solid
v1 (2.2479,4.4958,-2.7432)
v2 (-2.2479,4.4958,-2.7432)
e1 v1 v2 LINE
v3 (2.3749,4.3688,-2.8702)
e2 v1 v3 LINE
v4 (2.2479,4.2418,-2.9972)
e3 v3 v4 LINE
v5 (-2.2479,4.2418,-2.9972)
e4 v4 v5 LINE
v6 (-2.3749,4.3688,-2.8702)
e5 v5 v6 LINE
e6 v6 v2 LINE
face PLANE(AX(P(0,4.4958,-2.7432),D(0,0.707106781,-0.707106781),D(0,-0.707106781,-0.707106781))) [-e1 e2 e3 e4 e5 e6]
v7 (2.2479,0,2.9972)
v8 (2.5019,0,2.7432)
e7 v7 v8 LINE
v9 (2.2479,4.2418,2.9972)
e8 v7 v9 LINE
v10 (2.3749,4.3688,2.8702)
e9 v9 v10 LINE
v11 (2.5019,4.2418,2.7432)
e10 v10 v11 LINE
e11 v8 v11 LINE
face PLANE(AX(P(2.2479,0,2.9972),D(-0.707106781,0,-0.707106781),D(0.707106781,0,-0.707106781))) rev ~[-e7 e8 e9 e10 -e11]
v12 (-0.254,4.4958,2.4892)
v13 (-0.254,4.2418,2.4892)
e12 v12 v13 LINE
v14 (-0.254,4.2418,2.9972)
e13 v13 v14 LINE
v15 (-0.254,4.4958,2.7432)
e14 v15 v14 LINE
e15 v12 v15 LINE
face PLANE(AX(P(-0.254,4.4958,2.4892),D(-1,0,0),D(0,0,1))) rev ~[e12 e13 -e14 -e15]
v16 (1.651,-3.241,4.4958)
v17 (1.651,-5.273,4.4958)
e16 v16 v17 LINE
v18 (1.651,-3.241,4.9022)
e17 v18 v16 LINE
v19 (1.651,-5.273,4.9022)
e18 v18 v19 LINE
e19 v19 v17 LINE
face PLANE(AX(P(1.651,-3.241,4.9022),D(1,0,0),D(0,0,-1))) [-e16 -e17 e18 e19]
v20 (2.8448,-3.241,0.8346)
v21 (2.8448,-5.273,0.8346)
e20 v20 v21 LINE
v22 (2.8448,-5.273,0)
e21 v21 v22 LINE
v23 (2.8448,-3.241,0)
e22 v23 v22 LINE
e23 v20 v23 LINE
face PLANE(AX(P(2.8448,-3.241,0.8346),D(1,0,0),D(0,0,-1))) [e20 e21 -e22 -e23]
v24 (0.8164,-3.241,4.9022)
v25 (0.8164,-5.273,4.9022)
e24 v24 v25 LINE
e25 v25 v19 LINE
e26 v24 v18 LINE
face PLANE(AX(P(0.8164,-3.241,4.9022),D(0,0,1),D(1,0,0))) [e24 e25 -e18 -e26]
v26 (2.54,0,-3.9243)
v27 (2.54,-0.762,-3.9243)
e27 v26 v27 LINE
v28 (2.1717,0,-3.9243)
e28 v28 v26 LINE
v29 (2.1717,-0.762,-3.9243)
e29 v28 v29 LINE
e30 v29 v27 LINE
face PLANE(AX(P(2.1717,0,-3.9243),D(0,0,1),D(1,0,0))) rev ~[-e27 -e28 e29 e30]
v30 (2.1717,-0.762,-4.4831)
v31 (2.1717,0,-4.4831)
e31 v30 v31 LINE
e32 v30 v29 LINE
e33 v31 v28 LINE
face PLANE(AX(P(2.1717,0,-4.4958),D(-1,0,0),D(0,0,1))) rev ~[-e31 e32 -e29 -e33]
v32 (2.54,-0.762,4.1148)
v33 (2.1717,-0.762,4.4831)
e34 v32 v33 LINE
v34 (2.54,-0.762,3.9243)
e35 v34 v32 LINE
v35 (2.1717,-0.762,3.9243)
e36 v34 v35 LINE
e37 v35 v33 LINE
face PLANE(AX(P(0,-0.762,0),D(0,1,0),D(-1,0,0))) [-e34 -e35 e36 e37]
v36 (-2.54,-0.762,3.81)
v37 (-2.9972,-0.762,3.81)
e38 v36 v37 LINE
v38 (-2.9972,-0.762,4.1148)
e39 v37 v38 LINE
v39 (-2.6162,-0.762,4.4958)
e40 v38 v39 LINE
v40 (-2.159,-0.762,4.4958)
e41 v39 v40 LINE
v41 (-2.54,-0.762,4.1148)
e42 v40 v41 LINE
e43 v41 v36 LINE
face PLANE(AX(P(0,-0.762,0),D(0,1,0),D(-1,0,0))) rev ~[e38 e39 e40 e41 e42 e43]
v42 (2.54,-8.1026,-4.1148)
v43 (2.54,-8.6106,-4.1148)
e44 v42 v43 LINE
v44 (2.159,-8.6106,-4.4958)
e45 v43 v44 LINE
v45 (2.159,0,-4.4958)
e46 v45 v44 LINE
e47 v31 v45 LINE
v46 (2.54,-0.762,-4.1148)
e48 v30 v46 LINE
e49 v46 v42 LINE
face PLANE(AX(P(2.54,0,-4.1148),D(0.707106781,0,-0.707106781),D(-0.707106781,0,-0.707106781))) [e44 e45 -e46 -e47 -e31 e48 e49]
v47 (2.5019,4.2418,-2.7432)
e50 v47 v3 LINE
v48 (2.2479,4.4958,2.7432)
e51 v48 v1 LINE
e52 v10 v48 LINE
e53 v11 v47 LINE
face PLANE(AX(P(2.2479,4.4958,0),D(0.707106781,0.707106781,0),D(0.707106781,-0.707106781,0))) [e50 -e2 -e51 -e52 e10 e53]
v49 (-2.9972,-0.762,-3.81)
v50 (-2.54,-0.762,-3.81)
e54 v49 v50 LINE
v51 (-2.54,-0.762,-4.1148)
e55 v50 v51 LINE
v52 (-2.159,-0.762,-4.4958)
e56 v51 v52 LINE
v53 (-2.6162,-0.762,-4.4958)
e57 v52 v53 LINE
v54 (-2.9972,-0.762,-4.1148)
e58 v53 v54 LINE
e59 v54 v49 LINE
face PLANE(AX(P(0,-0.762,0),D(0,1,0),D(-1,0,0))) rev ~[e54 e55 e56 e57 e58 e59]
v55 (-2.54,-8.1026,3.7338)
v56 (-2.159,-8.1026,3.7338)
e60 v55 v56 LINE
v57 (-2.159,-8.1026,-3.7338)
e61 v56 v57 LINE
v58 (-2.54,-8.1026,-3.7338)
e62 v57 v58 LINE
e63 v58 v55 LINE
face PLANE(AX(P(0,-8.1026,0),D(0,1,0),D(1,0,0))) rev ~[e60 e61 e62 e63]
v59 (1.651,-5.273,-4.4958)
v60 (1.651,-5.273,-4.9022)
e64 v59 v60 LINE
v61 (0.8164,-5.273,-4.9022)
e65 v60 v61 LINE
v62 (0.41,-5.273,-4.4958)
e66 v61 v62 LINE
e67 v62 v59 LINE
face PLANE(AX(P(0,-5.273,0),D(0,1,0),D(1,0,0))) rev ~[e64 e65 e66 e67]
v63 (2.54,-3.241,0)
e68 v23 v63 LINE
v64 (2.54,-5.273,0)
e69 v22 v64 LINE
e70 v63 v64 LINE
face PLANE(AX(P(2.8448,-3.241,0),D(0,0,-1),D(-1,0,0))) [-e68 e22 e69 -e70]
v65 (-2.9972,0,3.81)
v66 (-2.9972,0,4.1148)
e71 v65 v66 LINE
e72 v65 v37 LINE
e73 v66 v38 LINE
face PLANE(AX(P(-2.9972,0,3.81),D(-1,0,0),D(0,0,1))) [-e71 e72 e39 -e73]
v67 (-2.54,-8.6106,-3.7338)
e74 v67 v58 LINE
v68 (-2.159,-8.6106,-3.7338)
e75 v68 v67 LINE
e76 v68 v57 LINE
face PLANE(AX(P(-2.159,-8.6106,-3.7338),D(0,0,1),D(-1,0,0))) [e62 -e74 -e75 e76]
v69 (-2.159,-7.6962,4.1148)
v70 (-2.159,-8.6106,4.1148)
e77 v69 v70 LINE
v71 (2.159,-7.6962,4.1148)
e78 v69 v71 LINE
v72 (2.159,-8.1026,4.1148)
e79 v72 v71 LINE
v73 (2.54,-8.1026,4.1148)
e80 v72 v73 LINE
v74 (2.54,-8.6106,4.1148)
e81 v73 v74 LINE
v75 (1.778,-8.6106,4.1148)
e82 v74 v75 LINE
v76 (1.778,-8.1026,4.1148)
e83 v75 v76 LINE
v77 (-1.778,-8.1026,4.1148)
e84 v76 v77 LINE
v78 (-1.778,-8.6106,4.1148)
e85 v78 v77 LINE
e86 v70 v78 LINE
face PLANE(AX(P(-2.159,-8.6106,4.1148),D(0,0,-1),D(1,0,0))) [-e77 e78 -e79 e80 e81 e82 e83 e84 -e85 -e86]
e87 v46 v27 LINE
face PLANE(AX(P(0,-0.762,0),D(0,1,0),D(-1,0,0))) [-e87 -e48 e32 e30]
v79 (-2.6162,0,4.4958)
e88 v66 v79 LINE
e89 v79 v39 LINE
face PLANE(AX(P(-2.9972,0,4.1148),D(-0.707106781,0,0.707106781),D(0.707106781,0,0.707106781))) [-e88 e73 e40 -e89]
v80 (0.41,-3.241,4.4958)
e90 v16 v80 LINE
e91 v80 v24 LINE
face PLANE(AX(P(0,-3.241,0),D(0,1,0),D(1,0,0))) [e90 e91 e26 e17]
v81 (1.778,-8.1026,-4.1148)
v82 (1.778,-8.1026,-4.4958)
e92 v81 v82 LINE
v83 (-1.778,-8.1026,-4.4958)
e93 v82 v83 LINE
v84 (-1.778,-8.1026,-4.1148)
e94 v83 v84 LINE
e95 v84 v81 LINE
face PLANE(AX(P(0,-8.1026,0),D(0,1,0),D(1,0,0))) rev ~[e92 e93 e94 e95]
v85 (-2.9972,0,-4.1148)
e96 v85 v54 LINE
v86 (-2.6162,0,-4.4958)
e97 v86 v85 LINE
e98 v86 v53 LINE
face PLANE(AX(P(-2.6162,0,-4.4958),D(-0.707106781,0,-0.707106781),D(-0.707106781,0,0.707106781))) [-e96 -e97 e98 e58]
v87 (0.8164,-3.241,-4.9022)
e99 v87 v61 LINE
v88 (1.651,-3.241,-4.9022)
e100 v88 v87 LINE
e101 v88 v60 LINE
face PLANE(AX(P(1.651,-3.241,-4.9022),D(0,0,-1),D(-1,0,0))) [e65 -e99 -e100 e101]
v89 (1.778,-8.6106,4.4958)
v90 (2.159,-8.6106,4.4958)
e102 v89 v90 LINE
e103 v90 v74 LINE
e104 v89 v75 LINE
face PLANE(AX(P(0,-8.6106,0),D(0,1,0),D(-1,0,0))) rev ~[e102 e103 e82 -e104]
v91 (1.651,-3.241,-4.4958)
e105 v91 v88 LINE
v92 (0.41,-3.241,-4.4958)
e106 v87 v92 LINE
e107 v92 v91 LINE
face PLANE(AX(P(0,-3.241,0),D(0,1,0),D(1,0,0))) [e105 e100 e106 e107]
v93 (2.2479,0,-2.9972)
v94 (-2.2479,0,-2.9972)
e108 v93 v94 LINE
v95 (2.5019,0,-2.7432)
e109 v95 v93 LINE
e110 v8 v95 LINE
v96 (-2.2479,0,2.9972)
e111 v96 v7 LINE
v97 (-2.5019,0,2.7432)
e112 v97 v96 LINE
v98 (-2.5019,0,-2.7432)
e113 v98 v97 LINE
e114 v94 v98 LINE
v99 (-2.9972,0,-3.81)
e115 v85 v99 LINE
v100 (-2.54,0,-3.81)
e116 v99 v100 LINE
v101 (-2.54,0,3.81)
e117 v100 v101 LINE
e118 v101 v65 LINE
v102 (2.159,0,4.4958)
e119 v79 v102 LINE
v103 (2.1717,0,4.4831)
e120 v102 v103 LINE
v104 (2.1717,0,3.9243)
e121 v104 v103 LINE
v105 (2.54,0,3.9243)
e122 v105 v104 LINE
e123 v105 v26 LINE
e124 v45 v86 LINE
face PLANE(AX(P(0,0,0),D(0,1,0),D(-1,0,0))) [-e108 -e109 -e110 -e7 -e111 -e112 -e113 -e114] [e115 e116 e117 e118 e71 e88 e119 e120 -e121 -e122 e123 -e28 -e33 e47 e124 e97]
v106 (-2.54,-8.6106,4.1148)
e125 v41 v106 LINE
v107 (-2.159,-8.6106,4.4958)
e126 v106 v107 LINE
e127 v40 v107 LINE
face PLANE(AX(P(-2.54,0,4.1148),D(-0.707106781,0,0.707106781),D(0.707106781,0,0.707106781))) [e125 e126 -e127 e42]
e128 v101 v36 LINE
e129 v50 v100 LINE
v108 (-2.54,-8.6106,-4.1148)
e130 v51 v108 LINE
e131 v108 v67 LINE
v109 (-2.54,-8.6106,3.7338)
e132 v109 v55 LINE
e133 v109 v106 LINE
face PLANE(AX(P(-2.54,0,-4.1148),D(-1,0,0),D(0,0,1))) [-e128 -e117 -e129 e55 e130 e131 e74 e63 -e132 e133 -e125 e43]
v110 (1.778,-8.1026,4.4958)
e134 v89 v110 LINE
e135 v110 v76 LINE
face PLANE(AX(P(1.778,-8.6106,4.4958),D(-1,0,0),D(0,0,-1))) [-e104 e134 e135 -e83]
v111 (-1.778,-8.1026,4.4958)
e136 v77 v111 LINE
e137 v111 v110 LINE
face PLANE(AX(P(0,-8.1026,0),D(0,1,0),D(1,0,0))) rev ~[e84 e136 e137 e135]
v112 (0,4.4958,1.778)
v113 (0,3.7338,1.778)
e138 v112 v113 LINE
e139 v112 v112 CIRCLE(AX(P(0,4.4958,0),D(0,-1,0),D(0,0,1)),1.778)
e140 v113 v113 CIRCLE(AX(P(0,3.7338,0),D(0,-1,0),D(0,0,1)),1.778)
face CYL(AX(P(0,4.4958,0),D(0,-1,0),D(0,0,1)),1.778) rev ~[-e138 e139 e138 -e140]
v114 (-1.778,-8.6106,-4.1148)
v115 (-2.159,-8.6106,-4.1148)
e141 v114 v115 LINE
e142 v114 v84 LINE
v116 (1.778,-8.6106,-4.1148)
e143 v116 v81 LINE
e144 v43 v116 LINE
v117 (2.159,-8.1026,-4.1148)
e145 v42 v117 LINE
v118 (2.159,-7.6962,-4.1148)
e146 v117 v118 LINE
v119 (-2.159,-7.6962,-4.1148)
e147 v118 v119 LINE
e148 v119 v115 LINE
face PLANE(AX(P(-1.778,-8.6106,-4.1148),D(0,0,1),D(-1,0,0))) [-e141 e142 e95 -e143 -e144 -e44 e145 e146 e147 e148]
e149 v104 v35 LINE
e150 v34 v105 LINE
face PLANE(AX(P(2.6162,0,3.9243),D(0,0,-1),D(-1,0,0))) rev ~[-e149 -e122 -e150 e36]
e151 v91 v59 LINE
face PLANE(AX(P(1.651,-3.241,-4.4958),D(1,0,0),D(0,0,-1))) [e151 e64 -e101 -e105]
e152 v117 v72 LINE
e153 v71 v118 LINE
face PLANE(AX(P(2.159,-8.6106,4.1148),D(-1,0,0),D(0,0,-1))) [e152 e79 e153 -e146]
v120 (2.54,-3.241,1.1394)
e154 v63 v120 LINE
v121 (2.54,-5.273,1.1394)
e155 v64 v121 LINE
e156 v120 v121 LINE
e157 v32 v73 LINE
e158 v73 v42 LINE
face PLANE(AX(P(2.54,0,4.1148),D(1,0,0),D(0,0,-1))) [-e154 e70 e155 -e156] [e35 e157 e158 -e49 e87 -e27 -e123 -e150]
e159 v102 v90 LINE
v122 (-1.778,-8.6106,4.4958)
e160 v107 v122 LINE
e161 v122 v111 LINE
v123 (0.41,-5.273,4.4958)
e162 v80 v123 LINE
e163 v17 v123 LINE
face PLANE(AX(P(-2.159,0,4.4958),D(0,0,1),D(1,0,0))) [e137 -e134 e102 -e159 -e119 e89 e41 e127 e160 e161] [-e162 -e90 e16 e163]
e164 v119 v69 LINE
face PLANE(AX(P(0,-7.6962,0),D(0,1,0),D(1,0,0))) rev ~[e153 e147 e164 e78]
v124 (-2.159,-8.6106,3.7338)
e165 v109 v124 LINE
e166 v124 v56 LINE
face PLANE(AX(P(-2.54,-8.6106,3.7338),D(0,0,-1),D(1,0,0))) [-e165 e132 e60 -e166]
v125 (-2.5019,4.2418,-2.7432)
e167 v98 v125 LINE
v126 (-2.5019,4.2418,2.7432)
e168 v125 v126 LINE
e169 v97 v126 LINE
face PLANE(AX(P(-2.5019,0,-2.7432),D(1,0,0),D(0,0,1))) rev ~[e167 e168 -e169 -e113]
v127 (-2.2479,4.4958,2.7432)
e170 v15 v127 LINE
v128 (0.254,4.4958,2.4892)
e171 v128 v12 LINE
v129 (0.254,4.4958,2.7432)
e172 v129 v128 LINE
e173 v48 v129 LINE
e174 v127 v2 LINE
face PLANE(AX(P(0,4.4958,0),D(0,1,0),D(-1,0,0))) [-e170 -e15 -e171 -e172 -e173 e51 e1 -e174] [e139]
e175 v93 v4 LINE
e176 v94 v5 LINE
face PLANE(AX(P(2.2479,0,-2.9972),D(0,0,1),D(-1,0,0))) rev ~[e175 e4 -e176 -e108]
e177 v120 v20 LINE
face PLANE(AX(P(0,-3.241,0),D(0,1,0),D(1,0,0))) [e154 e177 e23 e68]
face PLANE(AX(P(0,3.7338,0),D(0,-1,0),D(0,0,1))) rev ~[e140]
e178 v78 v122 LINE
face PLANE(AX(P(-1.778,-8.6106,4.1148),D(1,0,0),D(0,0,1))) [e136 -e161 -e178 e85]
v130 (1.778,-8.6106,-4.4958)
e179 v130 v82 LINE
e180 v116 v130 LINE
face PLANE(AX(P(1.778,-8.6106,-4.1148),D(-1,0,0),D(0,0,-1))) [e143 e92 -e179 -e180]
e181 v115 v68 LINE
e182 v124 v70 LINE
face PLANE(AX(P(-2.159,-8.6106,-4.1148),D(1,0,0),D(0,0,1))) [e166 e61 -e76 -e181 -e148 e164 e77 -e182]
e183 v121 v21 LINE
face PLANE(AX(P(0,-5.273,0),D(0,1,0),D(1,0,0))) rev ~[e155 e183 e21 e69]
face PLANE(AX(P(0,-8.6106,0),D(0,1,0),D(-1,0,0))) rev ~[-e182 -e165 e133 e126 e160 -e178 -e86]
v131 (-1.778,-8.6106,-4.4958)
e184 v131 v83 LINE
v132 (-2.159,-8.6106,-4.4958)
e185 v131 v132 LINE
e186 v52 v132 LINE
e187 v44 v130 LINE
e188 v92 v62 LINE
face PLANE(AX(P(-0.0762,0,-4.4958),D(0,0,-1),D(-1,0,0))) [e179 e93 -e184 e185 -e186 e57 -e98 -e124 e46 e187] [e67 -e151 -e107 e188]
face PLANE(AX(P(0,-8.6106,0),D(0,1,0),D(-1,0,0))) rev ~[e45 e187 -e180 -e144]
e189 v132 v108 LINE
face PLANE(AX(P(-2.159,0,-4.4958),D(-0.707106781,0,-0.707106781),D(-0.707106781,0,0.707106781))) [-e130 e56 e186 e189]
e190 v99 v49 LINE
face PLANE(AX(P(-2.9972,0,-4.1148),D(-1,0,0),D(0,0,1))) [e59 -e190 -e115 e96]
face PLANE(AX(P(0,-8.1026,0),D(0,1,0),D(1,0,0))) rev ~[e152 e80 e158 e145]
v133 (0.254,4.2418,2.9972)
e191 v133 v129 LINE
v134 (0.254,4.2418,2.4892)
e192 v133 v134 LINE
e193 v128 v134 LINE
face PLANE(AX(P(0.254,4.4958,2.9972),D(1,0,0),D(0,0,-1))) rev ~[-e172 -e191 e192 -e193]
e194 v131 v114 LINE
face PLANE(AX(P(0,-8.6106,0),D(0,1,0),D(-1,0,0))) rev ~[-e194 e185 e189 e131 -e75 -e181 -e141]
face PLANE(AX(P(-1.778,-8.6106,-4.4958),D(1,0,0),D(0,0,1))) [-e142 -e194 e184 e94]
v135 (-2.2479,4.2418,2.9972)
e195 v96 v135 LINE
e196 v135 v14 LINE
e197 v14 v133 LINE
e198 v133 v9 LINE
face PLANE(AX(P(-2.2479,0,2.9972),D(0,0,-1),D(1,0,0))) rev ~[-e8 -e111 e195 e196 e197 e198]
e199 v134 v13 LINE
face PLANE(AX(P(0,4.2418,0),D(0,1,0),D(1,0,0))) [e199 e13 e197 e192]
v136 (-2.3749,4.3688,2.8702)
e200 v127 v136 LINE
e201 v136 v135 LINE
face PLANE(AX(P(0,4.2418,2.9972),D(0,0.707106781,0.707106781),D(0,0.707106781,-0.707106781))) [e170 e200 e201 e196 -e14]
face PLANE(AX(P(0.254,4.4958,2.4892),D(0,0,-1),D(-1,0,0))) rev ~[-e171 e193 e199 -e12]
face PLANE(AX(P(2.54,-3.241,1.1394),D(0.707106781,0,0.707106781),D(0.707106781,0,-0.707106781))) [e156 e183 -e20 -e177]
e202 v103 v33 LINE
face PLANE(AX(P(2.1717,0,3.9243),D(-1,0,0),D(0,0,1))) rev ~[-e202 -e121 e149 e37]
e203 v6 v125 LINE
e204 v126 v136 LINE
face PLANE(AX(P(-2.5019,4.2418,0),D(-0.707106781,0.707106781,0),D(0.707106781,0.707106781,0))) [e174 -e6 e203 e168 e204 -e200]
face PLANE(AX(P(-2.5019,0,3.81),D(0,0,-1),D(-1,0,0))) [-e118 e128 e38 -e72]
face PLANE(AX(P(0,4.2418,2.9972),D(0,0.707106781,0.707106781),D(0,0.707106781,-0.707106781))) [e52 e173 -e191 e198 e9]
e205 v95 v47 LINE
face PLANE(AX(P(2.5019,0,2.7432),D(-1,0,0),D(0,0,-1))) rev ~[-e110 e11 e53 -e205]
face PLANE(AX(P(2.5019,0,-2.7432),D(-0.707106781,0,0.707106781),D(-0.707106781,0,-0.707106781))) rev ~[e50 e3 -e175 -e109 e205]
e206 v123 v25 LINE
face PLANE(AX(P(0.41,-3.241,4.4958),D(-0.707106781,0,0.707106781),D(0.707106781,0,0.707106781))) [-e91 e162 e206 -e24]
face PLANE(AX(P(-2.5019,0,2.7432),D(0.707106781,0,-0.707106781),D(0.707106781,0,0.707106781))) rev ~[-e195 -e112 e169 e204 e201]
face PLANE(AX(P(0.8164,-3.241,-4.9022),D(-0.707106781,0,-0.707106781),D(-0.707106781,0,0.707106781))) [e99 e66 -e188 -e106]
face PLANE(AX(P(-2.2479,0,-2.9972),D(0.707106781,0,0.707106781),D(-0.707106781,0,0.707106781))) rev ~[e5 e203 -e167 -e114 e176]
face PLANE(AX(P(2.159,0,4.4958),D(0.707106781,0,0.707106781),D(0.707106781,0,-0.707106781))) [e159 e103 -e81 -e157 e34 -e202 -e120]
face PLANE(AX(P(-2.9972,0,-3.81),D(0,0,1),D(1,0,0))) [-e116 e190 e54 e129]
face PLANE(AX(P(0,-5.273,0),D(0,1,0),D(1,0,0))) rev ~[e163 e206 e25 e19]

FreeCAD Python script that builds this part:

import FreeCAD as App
import Part
import Sketcher

V = App.Vector
Q = App.Units.Quantity

doc = App.newDocument("Part")
body = doc.addObject("PartDesign::Body", "Body")

# Sketch on XZ plane
sketch1 = body.newObject("Sketcher::SketchObject", "Sketch")
sketch1.AttachmentSupport = (doc.getObject("XZ_Plane"), [""])
sketch1.MapMode = "FlatFace"
sketch1.addGeometry([
    Part.LineSegment(V(-2.159, -4.4958, 0), V(-2.54, -4.1148, 0)),  # 0
    Part.LineSegment(V(-2.54, -4.1148, 0), V(-2.54, 4.1148, 0)),  # 1
    Part.LineSegment(V(-2.54, 4.1148, 0), V(-2.159, 4.4958, 0)),  # 2
    Part.LineSegment(V(-2.159, 4.4958, 0), V(2.159, 4.4958, 0)),  # 3
    Part.LineSegment(V(2.159, 4.4958, 0), V(2.54, 4.1148, 0)),  # 4
    Part.LineSegment(V(2.54, 4.1148, 0), V(2.54, -4.1148, 0)),  # 5
    Part.LineSegment(V(2.54, -4.1148, 0), V(2.159, -4.4958, 0)),  # 6
    Part.LineSegment(V(2.159, -4.4958, 0), V(-2.159, -4.4958, 0)),  # 7
], False)
sketch1.addConstraint([
    Sketcher.Constraint("Coincident", 0, 2, 1, 1),
    Sketcher.Constraint("Coincident", 1, 2, 2, 1),
    Sketcher.Constraint("Coincident", 2, 2, 3, 1),
    Sketcher.Constraint("Coincident", 3, 2, 4, 1),
    Sketcher.Constraint("Coincident", 4, 2, 5, 1),
    Sketcher.Constraint("Coincident", 5, 2, 6, 1),
    Sketcher.Constraint("Coincident", 6, 2, 7, 1),
    Sketcher.Constraint("Coincident", 7, 2, 0, 1),
    Sketcher.Constraint("Vertical", 1),
    Sketcher.Constraint("Horizontal", 3),
    Sketcher.Constraint("Vertical", 5),
    Sketcher.Constraint("Horizontal", 7),
    Sketcher.Constraint("Symmetric", 0, 2, 4, 2, -1, 1),
    Sketcher.Constraint("Symmetric", 2, 2, 6, 2, -1, 1),
    Sketcher.Constraint("Perpendicular", 0, 2),
    Sketcher.Constraint("Perpendicular", 2, 4),
    Sketcher.Constraint("Perpendicular", 4, 6),
    Sketcher.Constraint("Horizontal", 1, 2, 4, 2),
    Sketcher.Constraint("Vertical", 3, 2, 6, 2),
    Sketcher.Constraint("DistanceX", 3, 1, 3, 2, Q("0.17 in")),
    Sketcher.Constraint("DistanceX", 0, 2, -1, 1, Q("0.1 in")),
    Sketcher.Constraint("DistanceY", 1, 1, 1, 2, Q("0.324 in")),
])
pad1 = body.newObject("PartDesign::Pad", "Pad")
pad1.Profile = sketch1
pad1.Length = Q("0.339 in")

# Sketch on XZ plane
sketch2 = body.newObject("Sketcher::SketchObject", "Sketch001")
sketch2.AttachmentSupport = (doc.getObject("XZ_Plane"), [""])
sketch2.MapMode = "FlatFace"
sketch2.AttachmentOffset = App.Placement(V(0, 0, 0.339 * 25.4), App.Rotation())
sketch2.addGeometry([
    Part.LineSegment(V(-2.159, -3.7338, 0), V(-2.54, -3.7338, 0)),  # 0
    Part.LineSegment(V(-2.54, -3.7338, 0), V(-2.54, 3.7338, 0)),  # 1
    Part.LineSegment(V(-2.54, 3.7338, 0), V(-2.159, 3.7338, 0)),  # 2
    Part.LineSegment(V(-2.159, 3.7338, 0), V(-2.159, 4.1148, 0)),  # 3
    Part.LineSegment(V(-2.159, 4.1148, 0), V(-1.778, 4.1148, 0)),  # 4
    Part.LineSegment(V(-1.778, 4.1148, 0), V(-1.778, 4.4958, 0)),  # 5
    Part.LineSegment(V(-1.778, 4.4958, 0), V(1.778, 4.4958, 0)),  # 6
    Part.LineSegment(V(1.778, 4.4958, 0), V(1.778, 4.1148, 0)),  # 7
    Part.LineSegment(V(1.778, 4.1148, 0), V(2.54, 4.1148, 0)),  # 8
    Part.LineSegment(V(2.54, 4.1148, 0), V(2.54, -4.1148, 0)),  # 9
    Part.LineSegment(V(2.54, -4.1148, 0), V(1.778, -4.1148, 0)),  # 10
    Part.LineSegment(V(1.778, -4.1148, 0), V(1.778, -4.4958, 0)),  # 11
    Part.LineSegment(V(1.778, -4.4958, 0), V(-1.778, -4.4958, 0)),  # 12
    Part.LineSegment(V(-1.778, -4.4958, 0), V(-1.778, -4.1148, 0)),  # 13
    Part.LineSegment(V(-1.778, -4.1148, 0), V(-2.159, -4.1148, 0)),  # 14
    Part.LineSegment(V(-2.159, -4.1148, 0), V(-2.159, -3.7338, 0)),  # 15
], False)
sketch2.addConstraint([
    Sketcher.Constraint("Coincident", 0, 2, 1, 1),
    Sketcher.Constraint("Coincident", 1, 2, 2, 1),
    Sketcher.Constraint("Coincident", 2, 2, 3, 1),
    Sketcher.Constraint("Coincident", 3, 2, 4, 1),
    Sketcher.Constraint("Coincident", 4, 2, 5, 1),
    Sketcher.Constraint("Coincident", 5, 2, 6, 1),
    Sketcher.Constraint("Coincident", 6, 2, 7, 1),
    Sketcher.Constraint("Coincident", 7, 2, 8, 1),
    Sketcher.Constraint("Coincident", 8, 2, 9, 1),
    Sketcher.Constraint("Coincident", 9, 2, 10, 1),
    Sketcher.Constraint("Coincident", 10, 2, 11, 1),
    Sketcher.Constraint("Coincident", 11, 2, 12, 1),
    Sketcher.Constraint("Coincident", 12, 2, 13, 1),
    Sketcher.Constraint("Coincident", 13, 2, 14, 1),
    Sketcher.Constraint("Coincident", 14, 2, 15, 1),
    Sketcher.Constraint("Coincident", 15, 2, 0, 1),
    Sketcher.Constraint("Horizontal", 0),
    Sketcher.Constraint("Vertical", 1),
    Sketcher.Constraint("Horizontal", 2),
    Sketcher.Constraint("Vertical", 3),
    Sketcher.Constraint("Horizontal", 4),
    Sketcher.Constraint("Vertical", 5),
    Sketcher.Constraint("Horizontal", 6),
    Sketcher.Constraint("Vertical", 7),
    Sketcher.Constraint("Horizontal", 8),
    Sketcher.Constraint("Vertical", 9),
    Sketcher.Constraint("Horizontal", 10),
    Sketcher.Constraint("Vertical", 11),
    Sketcher.Constraint("Horizontal", 12),
    Sketcher.Constraint("Vertical", 13),
    Sketcher.Constraint("Horizontal", 14),
    Sketcher.Constraint("Vertical", 15),
    Sketcher.Constraint("Symmetric", 4, 2, 10, 2, -1, 1),
    Sketcher.Constraint("Symmetric", 6, 2, 12, 2, -1, 1),
    Sketcher.Constraint("Symmetric", 4, 2, 7, 2, -2),
    Sketcher.Constraint("Symmetric", 3, 2, 14, 2, -1),
    Sketcher.Constraint("Equal", 2, 4),
    Sketcher.Constraint("Equal", 14, 3),
    Sketcher.Constraint("Equal", 3, 5),
    Sketcher.Constraint("Equal", 13, 15),
    Sketcher.Constraint("DistanceX", 6, 1, 6, 2, Q("0.14 in")),
    Sketcher.Constraint("DistanceX", 8, 1, 8, 2, Q("0.03 in")),
    Sketcher.Constraint("DistanceX", 0, 2, -1, 1, Q("0.1 in")),
    Sketcher.Constraint("DistanceY", 1, 1, 1, 2, Q("0.294 in")),
])
pocket1 = body.newObject("PartDesign::Pocket", "Pocket")
pocket1.Profile = sketch2
pocket1.Length = Q("0.02 in")

# Sketch on XZ plane
sketch3 = body.newObject("Sketcher::SketchObject", "Sketch002")
sketch3.AttachmentSupport = (doc.getObject("XZ_Plane"), [""])
sketch3.MapMode = "FlatFace"
sketch3.AttachmentOffset = App.Placement(V(0, 0, 0.339 * 25.4), App.Rotation())
sketch3.addGeometry([
    Part.LineSegment(V(-2.159, -4.1148, 0), V(-2.159, 4.1148, 0)),
    Part.LineSegment(V(-2.159, 4.1148, 0), V(2.159, 4.1148, 0)),
    Part.LineSegment(V(2.159, 4.1148, 0), V(2.159, -4.1148, 0)),
    Part.LineSegment(V(2.159, -4.1148, 0), V(-2.159, -4.1148, 0)),
], False)
sketch3.addConstraint([
    Sketcher.Constraint("Coincident", 0, 2, 1, 1),
    Sketcher.Constraint("Coincident", 1, 2, 2, 1),
    Sketcher.Constraint("Coincident", 2, 2, 3, 1),
    Sketcher.Constraint("Coincident", 3, 2, 0, 1),
    Sketcher.Constraint("Vertical", 0),
    Sketcher.Constraint("Horizontal", 1),
    Sketcher.Constraint("Vertical", 2),
    Sketcher.Constraint("Horizontal", 3),
    Sketcher.Constraint("Symmetric", 0, 2, 2, 2, -1, 1),
    Sketcher.Constraint("DistanceX", 1, 1, 1, 2, Q("0.17 in")),
    Sketcher.Constraint("DistanceY", 0, 1, 0, 2, Q("0.324 in")),
])
pocket2 = body.newObject("PartDesign::Pocket", "Pocket001")
pocket2.Profile = sketch3
pocket2.Length = Q("0.036 in")

# Sketch on XZ plane
sketch4 = body.newObject("Sketcher::SketchObject", "Sketch003")
sketch4.AttachmentSupport = (doc.getObject("XZ_Plane"), [""])
sketch4.MapMode = "FlatFace"
sketch4.addGeometry([
    Part.LineSegment(V(2.1717, -4.4958, 0), V(2.1717, -3.9243, 0)),  # 0
    Part.LineSegment(V(2.1717, -3.9243, 0), V(2.6162, -3.9243, 0)),  # 1
    Part.LineSegment(V(2.6162, -3.9243, 0), V(2.6162, 3.9243, 0)),  # 2
    Part.LineSegment(V(2.6162, 3.9243, 0), V(2.1717, 3.9243, 0)),  # 3
    Part.LineSegment(V(2.1717, 3.9243, 0), V(2.1717, 4.4958, 0)),  # 4
    Part.LineSegment(V(2.1717, 4.4958, 0), V(2.921, 4.4958, 0)),  # 5
    Part.LineSegment(V(2.921, 4.4958, 0), V(2.921, -4.4958, 0)),  # 6
    Part.LineSegment(V(2.921, -4.4958, 0), V(2.1717, -4.4958, 0)),  # 7
], False)
sketch4.addConstraint([
    Sketcher.Constraint("Coincident", 0, 2, 1, 1),
    Sketcher.Constraint("Coincident", 1, 2, 2, 1),
    Sketcher.Constraint("Coincident", 2, 2, 3, 1),
    Sketcher.Constraint("Coincident", 3, 2, 4, 1),
    Sketcher.Constraint("Coincident", 4, 2, 5, 1),
    Sketcher.Constraint("Coincident", 5, 2, 6, 1),
    Sketcher.Constraint("Coincident", 6, 2, 7, 1),
    Sketcher.Constraint("Coincident", 7, 2, 0, 1),
    Sketcher.Constraint("Vertical", 0),
    Sketcher.Constraint("Horizontal", 1),
    Sketcher.Constraint("Vertical", 2),
    Sketcher.Constraint("Horizontal", 3),
    Sketcher.Constraint("Vertical", 4),
    Sketcher.Constraint("Horizontal", 5),
    Sketcher.Constraint("Vertical", 6),
    Sketcher.Constraint("Horizontal", 7),
    Sketcher.Constraint("Symmetric", 0, 2, 3, 2, -1),
    Sketcher.Constraint("Equal", 0, 4),
    Sketcher.Constraint("DistanceY", 2, 1, 2, 2, Q("0.309 in")),
    Sketcher.Constraint("DistanceY", 6, 2, 6, 1, Q("0.354 in")),
    Sketcher.Constraint("DistanceX", 1, 1, 1, 2, Q("0.0175 in")),
    Sketcher.Constraint("DistanceX", 5, 1, 5, 2, Q("0.0295 in")),
    Sketcher.Constraint("DistanceX", -1, 1, 1, 2, Q("0.103 in")),
])
pocket3 = body.newObject("PartDesign::Pocket", "Pocket002")
pocket3.Profile = sketch4
pocket3.Length = Q("0.03 in")
pocket3.Reversed = True

# Sketch on XZ plane
sketch5 = body.newObject("Sketcher::SketchObject", "Sketch004")
sketch5.AttachmentSupport = (doc.getObject("XZ_Plane"), [""])
sketch5.MapMode = "FlatFace"
sketch5.addGeometry([
    Part.LineSegment(V(-2.9972, -4.1148, 0), V(-2.9972, -3.81, 0)),  # 0
    Part.LineSegment(V(-2.9972, -3.81, 0), V(-2.5019, -3.81, 0)),  # 1
    Part.LineSegment(V(-2.5019, -3.81, 0), V(-2.5019, 3.81, 0)),  # 2
    Part.LineSegment(V(-2.5019, 3.81, 0), V(-2.9972, 3.81, 0)),  # 3
    Part.LineSegment(V(-2.9972, 3.81, 0), V(-2.9972, 4.1148, 0)),  # 4
    Part.LineSegment(V(-2.9972, 4.1148, 0), V(-2.6162, 4.4958, 0)),  # 5
    Part.LineSegment(V(-2.6162, 4.4958, 0), V(-0.0762, 4.4958, 0)),  # 6
    Part.LineSegment(V(-0.0762, 4.4958, 0), V(-0.0762, -4.4958, 0)),  # 7
    Part.LineSegment(V(-0.0762, -4.4958, 0), V(-2.6162, -4.4958, 0)),  # 8
    Part.LineSegment(V(-2.6162, -4.4958, 0), V(-2.9972, -4.1148, 0)),  # 9
], False)
sketch5.addConstraint([
    Sketcher.Constraint("Coincident", 0, 2, 1, 1),
    Sketcher.Constraint("Coincident", 1, 2, 2, 1),
    Sketcher.Constraint("Coincident", 2, 2, 3, 1),
    Sketcher.Constraint("Coincident", 3, 2, 4, 1),
    Sketcher.Constraint("Coincident", 4, 2, 5, 1),
    Sketcher.Constraint("Coincident", 5, 2, 6, 1),
    Sketcher.Constraint("Coincident", 6, 2, 7, 1),
    Sketcher.Constraint("Coincident", 7, 2, 8, 1),
    Sketcher.Constraint("Coincident", 8, 2, 9, 1),
    Sketcher.Constraint("Coincident", 9, 2, 0, 1),
    Sketcher.Constraint("Vertical", 0),
    Sketcher.Constraint("Horizontal", 1),
    Sketcher.Constraint("Vertical", 2),
    Sketcher.Constraint("Horizontal", 3),
    Sketcher.Constraint("Vertical", 4),
    Sketcher.Constraint("Horizontal", 6),
    Sketcher.Constraint("Vertical", 7),
    Sketcher.Constraint("Horizontal", 8),
    Sketcher.Constraint("Symmetric", 0, 2, 3, 2, -1),
    Sketcher.Constraint("Symmetric", 5, 2, 8, 2, -1),
    Sketcher.Constraint("Perpendicular", 5, 9),
    Sketcher.Constraint("Equal", 0, 4),
    Sketcher.Constraint("DistanceX", 6, 1, 6, 2, Q("0.1 in")),
    Sketcher.Constraint("DistanceY", 2, 1, 2, 2, Q("0.3 in")),
    Sketcher.Constraint("DistanceY", 0, 1, 0, 2, Q("0.012 in")),
    Sketcher.Constraint("DistanceY", 7, 2, 7, 1, Q("0.354 in")),
    Sketcher.Constraint("DistanceX", 1, 1, 1, 2, Q("0.0195 in")),
    Sketcher.Constraint("DistanceX", 0, 2, -1, 1, Q("0.118 in")),
])
pad2 = body.newObject("PartDesign::Pad", "Pad001")
pad2.Profile = sketch5
pad2.Length = Q("0.03 in")

# Sketch on XZ plane
sketch6 = body.newObject("Sketcher::SketchObject", "Sketch005")
sketch6.AttachmentSupport = (doc.getObject("XZ_Plane"), [""])
sketch6.MapMode = "FlatFace"
sketch6.AttachmentOffset = App.Placement(V(0, 0, 0.1275984 * 25.4), App.Rotation())
sketch6.addGeometry([
    Part.LineSegment(V(1.651, 4.4958, 0), V(0.41, 4.4958, 0)),
    Part.LineSegment(V(0.41, 4.4958, 0), V(0.8164, 4.9022, 0)),
    Part.LineSegment(V(0.8164, 4.9022, 0), V(1.651, 4.9022, 0)),
    Part.LineSegment(V(1.651, 4.9022, 0), V(1.651, 4.4958, 0)),
], False)
sketch6.addConstraint([
    Sketcher.Constraint("Coincident", 0, 2, 1, 1),
    Sketcher.Constraint("Coincident", 1, 2, 2, 1),
    Sketcher.Constraint("Coincident", 2, 2, 3, 1),
    Sketcher.Constraint("Coincident", 3, 2, 0, 1),
    Sketcher.Constraint("Horizontal", 0),
    Sketcher.Constraint("Horizontal", 2),
    Sketcher.Constraint("Vertical", 3),
    Sketcher.Constraint("Angle", 1, Q("45 deg")),
    Sketcher.Constraint("DistanceY", 3, 2, 3, 1, Q("0.016 in")),
    Sketcher.Constraint("DistanceY", -1, 1, 0, 2, Q("0.177 in")),
    Sketcher.Constraint("DistanceX", -1, 1, 2, 2, Q("0.065 in")),
    Sketcher.Constraint("DistanceX", 0, 2, 0, 1, Q("1.241 mm")),
])
pad3 = body.newObject("PartDesign::Pad", "Pad002")
pad3.Profile = sketch6
pad3.Length = Q("0.08 in")

# Sketch on XZ plane
sketch7 = body.newObject("Sketcher::SketchObject", "Sketch006")
sketch7.AttachmentSupport = (doc.getObject("XZ_Plane"), [""])
sketch7.MapMode = "FlatFace"
sketch7.AttachmentOffset = App.Placement(V(0, 0, 0.1275984 * 25.4), App.Rotation())
sketch7.addGeometry([
    Part.LineSegment(V(0.8164, -4.9022, 0), V(0.41, -4.4958, 0)),
    Part.LineSegment(V(0.41, -4.4958, 0), V(1.651, -4.4958, 0)),
    Part.LineSegment(V(1.651, -4.4958, 0), V(1.651, -4.9022, 0)),
    Part.LineSegment(V(1.651, -4.9022, 0), V(0.8164, -4.9022, 0)),
], False)
sketch7.addConstraint([
    Sketcher.Constraint("Coincident", 0, 2, 1, 1),
    Sketcher.Constraint("Coincident", 1, 2, 2, 1),
    Sketcher.Constraint("Coincident", 2, 2, 3, 1),
    Sketcher.Constraint("Coincident", 3, 2, 0, 1),
    Sketcher.Constraint("Horizontal", 1),
    Sketcher.Constraint("Vertical", 2),
    Sketcher.Constraint("Horizontal", 3),
    Sketcher.Constraint("Angle", 0, Q("135 deg")),
    Sketcher.Constraint("DistanceY", 2, 2, 2, 1, Q("0.016 in")),
    Sketcher.Constraint("DistanceY", 0, 2, -1, 1, Q("0.177 in")),
    Sketcher.Constraint("DistanceX", -1, 1, 1, 2, Q("0.065 in")),
    Sketcher.Constraint("DistanceX", 1, 1, 1, 2, Q("1.241 mm")),
])
pad4 = body.newObject("PartDesign::Pad", "Pad003")
pad4.Profile = sketch7
pad4.Length = Q("0.08 in")

# Sketch on XZ plane
sketch8 = body.newObject("Sketcher::SketchObject", "Sketch007")
sketch8.AttachmentSupport = (doc.getObject("XZ_Plane"), [""])
sketch8.MapMode = "FlatFace"
sketch8.AttachmentOffset = App.Placement(V(0, 0, 0.1275984 * 25.4), App.Rotation())
sketch8.addGeometry([
    Part.LineSegment(V(2.8448, 0, 0), V(2.54, 0, 0)),
    Part.LineSegment(V(2.54, 0, 0), V(2.54, 1.1394, 0)),
    Part.LineSegment(V(2.54, 1.1394, 0), V(2.8448, 0.8346, 0)),
    Part.LineSegment(V(2.8448, 0.8346, 0), V(2.8448, 0, 0)),
], False)
sketch8.addConstraint([
    Sketcher.Constraint("Coincident", 0, 2, 1, 1),
    Sketcher.Constraint("Coincident", 1, 2, 2, 1),
    Sketcher.Constraint("Coincident", 2, 2, 3, 1),
    Sketcher.Constraint("Coincident", 3, 2, 0, 1),
    Sketcher.Constraint("Horizontal", 0),
    Sketcher.Constraint("Vertical", 1),
    Sketcher.Constraint("Vertical", 3),
    Sketcher.Constraint("PointOnObject", 0, 2, -1),
    Sketcher.Constraint("Angle", 2, Q("-45 deg")),
    Sketcher.Constraint("DistanceX", -1, 1, 0, 2, Q("0.1 in")),
    Sketcher.Constraint("DistanceX", 0, 2, 0, 1, Q("0.012 in")),
    Sketcher.Constraint("DistanceY", 1, 1, 1, 2, Q("1.1394 mm")),
])
pad5 = body.newObject("PartDesign::Pad", "Pad004")
pad5.Profile = sketch8
pad5.Length = Q("0.08 in")

# Sketch on XZ plane
sketch9 = body.newObject("Sketcher::SketchObject", "Sketch008")
sketch9.AttachmentSupport = (doc.getObject("XZ_Plane"), [""])
sketch9.MapMode = "FlatFace"
sketch9.addGeometry([
    Part.LineSegment(V(-2.2479, -2.9972, 0), V(-2.5019, -2.7432, 0)),  # 0
    Part.LineSegment(V(-2.5019, -2.7432, 0), V(-2.5019, 2.7432, 0)),  # 1
    Part.LineSegment(V(-2.5019, 2.7432, 0), V(-2.2479, 2.9972, 0)),  # 2
    Part.LineSegment(V(-2.2479, 2.9972, 0), V(2.2479, 2.9972, 0)),  # 3
    Part.LineSegment(V(2.2479, 2.9972, 0), V(2.5019, 2.7432, 0)),  # 4
    Part.LineSegment(V(2.5019, 2.7432, 0), V(2.5019, -2.7432, 0)),  # 5
    Part.LineSegment(V(2.5019, -2.7432, 0), V(2.2479, -2.9972, 0)),  # 6
    Part.LineSegment(V(2.2479, -2.9972, 0), V(-2.2479, -2.9972, 0)),  # 7
], False)
sketch9.addConstraint([
    Sketcher.Constraint("Coincident", 0, 2, 1, 1),
    Sketcher.Constraint("Coincident", 1, 2, 2, 1),
    Sketcher.Constraint("Coincident", 2, 2, 3, 1),
    Sketcher.Constraint("Coincident", 3, 2, 4, 1),
    Sketcher.Constraint("Coincident", 4, 2, 5, 1),
    Sketcher.Constraint("Coincident", 5, 2, 6, 1),
    Sketcher.Constraint("Coincident", 6, 2, 7, 1),
    Sketcher.Constraint("Coincident", 7, 2, 0, 1),
    Sketcher.Constraint("Vertical", 1),
    Sketcher.Constraint("Horizontal", 3),
    Sketcher.Constraint("Vertical", 5),
    Sketcher.Constraint("Horizontal", 7),
    Sketcher.Constraint("Symmetric", 0, 2, 4, 2, -1, 1),
    Sketcher.Constraint("Symmetric", 2, 2, 6, 2, -1, 1),
    Sketcher.Constraint("Perpendicular", 0, 2),
    Sketcher.Constraint("Perpendicular", 2, 4),
    Sketcher.Constraint("Perpendicular", 4, 6),
    Sketcher.Constraint("Horizontal", 1, 2, 4, 2),
    Sketcher.Constraint("Vertical", 3, 2, 6, 2),
    Sketcher.Constraint("DistanceX", 3, 1, 3, 2, Q("0.177 in")),
    Sketcher.Constraint("DistanceY", 1, 1, 1, 2, Q("0.216 in")),
    Sketcher.Constraint("DistanceX", 1, 2, 2, 2, Q("0.01 in")),
])
pad6 = body.newObject("PartDesign::Pad", "Pad005")
pad6.Profile = sketch9
pad6.Length = Q("0.177 in")
pad6.Reversed = True

# Sketch on YZ plane
sketch10 = body.newObject("Sketcher::SketchObject", "Sketch009")
sketch10.AttachmentSupport = (doc.getObject("YZ_Plane"), [""])
sketch10.MapMode = "FlatFace"
sketch10.addGeometry([
    Part.LineSegment(V(4.5957, 3.2953, 0), V(0, 3.2953, 0)),  # 0
    Part.LineSegment(V(0, 3.2953, 0), V(0, 2.9972, 0)),  # 1
    Part.LineSegment(V(0, 2.9972, 0), V(4.2418, 2.9972, 0)),  # 2
    Part.LineSegment(V(4.2418, 2.9972, 0), V(4.4958, 2.7432, 0)),  # 3
    Part.LineSegment(V(4.4958, 2.7432, 0), V(4.4958, -2.7432, 0)),  # 4
    Part.LineSegment(V(4.4958, -2.7432, 0), V(4.2418, -2.9972, 0)),  # 5
    Part.LineSegment(V(4.2418, -2.9972, 0), V(0, -2.9972, 0)),  # 6
    Part.LineSegment(V(0, -2.9972, 0), V(0, -3.2953, 0)),  # 7
    Part.LineSegment(V(0, -3.2953, 0), V(4.5957, -3.2953, 0)),  # 8
    Part.LineSegment(V(4.5957, -3.2953, 0), V(4.5957, 3.2953, 0)),  # 9
], False)
sketch10.addConstraint([
    Sketcher.Constraint("Coincident", 0, 2, 1, 1),
    Sketcher.Constraint("Coincident", 1, 2, 2, 1),
    Sketcher.Constraint("Coincident", 2, 2, 3, 1),
    Sketcher.Constraint("Coincident", 3, 2, 4, 1),
    Sketcher.Constraint("Coincident", 4, 2, 5, 1),
    Sketcher.Constraint("Coincident", 5, 2, 6, 1),
    Sketcher.Constraint("Coincident", 6, 2, 7, 1),
    Sketcher.Constraint("Coincident", 7, 2, 8, 1),
    Sketcher.Constraint("Coincident", 8, 2, 9, 1),
    Sketcher.Constraint("Coincident", 9, 2, 0, 1),
    Sketcher.Constraint("Horizontal", 0),
    Sketcher.Constraint("Vertical", 1),
    Sketcher.Constraint("Horizontal", 2),
    Sketcher.Constraint("Vertical", 4),
    Sketcher.Constraint("Horizontal", 6),
    Sketcher.Constraint("Vertical", 7),
    Sketcher.Constraint("Horizontal", 8),
    Sketcher.Constraint("Vertical", 9),
    Sketcher.Constraint("Symmetric", 1, 2, 6, 2, -1, 1),
    Sketcher.Constraint("Symmetric", 0, 2, 7, 2, -1),
    Sketcher.Constraint("Perpendicular", 3, 5),
    Sketcher.Constraint("Vertical", 2, 2, 5, 2),
    Sketcher.Constraint("Equal", 3, 5),
    Sketcher.Constraint("DistanceX", 2, 1, 2, 2, Q("0.167 in")),
    Sketcher.Constraint("DistanceY", 4, 2, 4, 1, Q("0.216 in")),
    Sketcher.Constraint("DistanceX", 2, 2, 3, 2, Q("0.01 in")),
    Sketcher.Constraint("DistanceX", 0, 2, 0, 1, Q("4.5957 mm")),
    Sketcher.Constraint("DistanceY", 1, 2, 1, 1, Q("0.298 mm")),
])
pocket4 = body.newObject("PartDesign::Pocket", "Pocket003")
pocket4.Profile = sketch10
pocket4.Length = Q("0.197 in")
pocket4.Midplane = True

# Sketch on XY plane
sketch11 = body.newObject("Sketcher::SketchObject", "Sketch010")
sketch11.AttachmentSupport = (doc.getObject("XY_Plane"), [""])
sketch11.MapMode = "FlatFace"
sketch11.addGeometry([
    Part.LineSegment(V(-3.2953, 4.5957, 0), V(-3.2953, 0, 0)),  # 0
    Part.LineSegment(V(-3.2953, 0, 0), V(-2.5019, 0, 0)),  # 1
    Part.LineSegment(V(-2.5019, 0, 0), V(-2.5019, 4.2418, 0)),  # 2
    Part.LineSegment(V(-2.5019, 4.2418, 0), V(-2.2479, 4.4958, 0)),  # 3
    Part.LineSegment(V(-2.2479, 4.4958, 0), V(2.2479, 4.4958, 0)),  # 4
    Part.LineSegment(V(2.2479, 4.4958, 0), V(2.5019, 4.2418, 0)),  # 5
    Part.LineSegment(V(2.5019, 4.2418, 0), V(2.5019, 0, 0)),  # 6
    Part.LineSegment(V(2.5019, 0, 0), V(3.2953, 0, 0)),  # 7
    Part.LineSegment(V(3.2953, 0, 0), V(3.2953, 4.5957, 0)),  # 8
    Part.LineSegment(V(3.2953, 4.5957, 0), V(-3.2953, 4.5957, 0)),  # 9
], False)
sketch11.addConstraint([
    Sketcher.Constraint("Coincident", 0, 2, 1, 1),
    Sketcher.Constraint("Coincident", 1, 2, 2, 1),
    Sketcher.Constraint("Coincident", 2, 2, 3, 1),
    Sketcher.Constraint("Coincident", 3, 2, 4, 1),
    Sketcher.Constraint("Coincident", 4, 2, 5, 1),
    Sketcher.Constraint("Coincident", 5, 2, 6, 1),
    Sketcher.Constraint("Coincident", 6, 2, 7, 1),
    Sketcher.Constraint("Coincident", 7, 2, 8, 1),
    Sketcher.Constraint("Coincident", 8, 2, 9, 1),
    Sketcher.Constraint("Coincident", 9, 2, 0, 1),
    Sketcher.Constraint("Vertical", 0),
    Sketcher.Constraint("Horizontal", 1),
    Sketcher.Constraint("Vertical", 2),
    Sketcher.Constraint("Horizontal", 4),
    Sketcher.Constraint("Vertical", 6),
    Sketcher.Constraint("Horizontal", 7),
    Sketcher.Constraint("Vertical", 8),
    Sketcher.Constraint("Horizontal", 9),
    Sketcher.Constraint("Symmetric", 1, 2, 6, 2, -1, 1),
    Sketcher.Constraint("Symmetric", 0, 2, 7, 2, -2),
    Sketcher.Constraint("Perpendicular", 3, 5),
    Sketcher.Constraint("Horizontal", 2, 2, 5, 2),
    Sketcher.Constraint("Equal", 3, 5),
    Sketcher.Constraint("DistanceX", 4, 1, 4, 2, Q("0.177 in")),
    Sketcher.Constraint("DistanceY", 2, 1, 2, 2, Q("0.167 in")),
    Sketcher.Constraint("DistanceX", 2, 2, 3, 2, Q("0.01 in")),
    Sketcher.Constraint("DistanceX", 1, 1, 1, 2, Q("0.7934 mm")),
    Sketcher.Constraint("DistanceY", 0, 2, 0, 1, Q("4.5957 mm")),
])
pocket5 = body.newObject("PartDesign::Pocket", "Pocket004")
pocket5.Profile = sketch11
pocket5.Length = Q("0.236 in")
pocket5.Midplane = True

# Sketch on XZ plane
sketch12 = body.newObject("Sketcher::SketchObject", "Sketch011")
sketch12.AttachmentSupport = (doc.getObject("XZ_Plane"), [""])
sketch12.MapMode = "FlatFace"
sketch12.AttachmentOffset = App.Placement(V(0, 0, -0.177 * 25.4), App.Rotation())
sketch12.addGeometry(Part.Circle(V(0, 0, 0), V(0, 0, 1), 1.778), False)
sketch12.addConstraint([
    Sketcher.Constraint("Coincident", 0, 3, -1, 1),
    Sketcher.Constraint("Diameter", 0, Q("0.14 in")),
])
doc.recompute()
hole = body.newObject("PartDesign::Hole", "Hole")
hole.Profile = sketch12
hole.ThreadType = "None"
hole.Diameter = Q("0.14 in")
hole.DepthType = "Dimension"
hole.Depth = Q("0.03 in")
hole.DrillPoint = "Flat"
hole.Reversed = True

# Sketch on XZ plane
sketch13 = body.newObject("Sketcher::SketchObject", "Sketch012")
sketch13.AttachmentSupport = (doc.getObject("XZ_Plane"), [""])
sketch13.MapMode = "FlatFace"
sketch13.AttachmentOffset = App.Placement(V(0, 0, -0.177 * 25.4), App.Rotation())
sketch13.addGeometry([
    Part.LineSegment(V(0.254, 2.4892, 0), V(-0.254, 2.4892, 0)),
    Part.LineSegment(V(-0.254, 2.4892, 0), V(-0.254, 2.9972, 0)),
    Part.LineSegment(V(-0.254, 2.9972, 0), V(0.254, 2.9972, 0)),
    Part.LineSegment(V(0.254, 2.9972, 0), V(0.254, 2.4892, 0)),
], False)
sketch13.addConstraint([
    Sketcher.Constraint("Coincident", 0, 2, 1, 1),
    Sketcher.Constraint("Coincident", 1, 2, 2, 1),
    Sketcher.Constraint("Coincident", 2, 2, 3, 1),
    Sketcher.Constraint("Coincident", 3, 2, 0, 1),
    Sketcher.Constraint("Horizontal", 0),
    Sketcher.Constraint("Vertical", 1),
    Sketcher.Constraint("Horizontal", 2),
    Sketcher.Constraint("Vertical", 3),
    Sketcher.Constraint("Equal", 2, 1),
    Sketcher.Constraint("DistanceX", 0, 2, 0, 1, Q("0.02 in")),
    Sketcher.Constraint("DistanceX", 0, 2, -1, 1, Q("0.01 in")),
    Sketcher.Constraint("DistanceY", -1, 1, 0, 2, Q("0.098 in")),
])
pocket6 = body.newObject("PartDesign::Pocket", "Pocket005")
pocket6.Profile = sketch13
pocket6.Length = Q("0.01 in")
pocket6.Reversed = True

doc.recompute()
